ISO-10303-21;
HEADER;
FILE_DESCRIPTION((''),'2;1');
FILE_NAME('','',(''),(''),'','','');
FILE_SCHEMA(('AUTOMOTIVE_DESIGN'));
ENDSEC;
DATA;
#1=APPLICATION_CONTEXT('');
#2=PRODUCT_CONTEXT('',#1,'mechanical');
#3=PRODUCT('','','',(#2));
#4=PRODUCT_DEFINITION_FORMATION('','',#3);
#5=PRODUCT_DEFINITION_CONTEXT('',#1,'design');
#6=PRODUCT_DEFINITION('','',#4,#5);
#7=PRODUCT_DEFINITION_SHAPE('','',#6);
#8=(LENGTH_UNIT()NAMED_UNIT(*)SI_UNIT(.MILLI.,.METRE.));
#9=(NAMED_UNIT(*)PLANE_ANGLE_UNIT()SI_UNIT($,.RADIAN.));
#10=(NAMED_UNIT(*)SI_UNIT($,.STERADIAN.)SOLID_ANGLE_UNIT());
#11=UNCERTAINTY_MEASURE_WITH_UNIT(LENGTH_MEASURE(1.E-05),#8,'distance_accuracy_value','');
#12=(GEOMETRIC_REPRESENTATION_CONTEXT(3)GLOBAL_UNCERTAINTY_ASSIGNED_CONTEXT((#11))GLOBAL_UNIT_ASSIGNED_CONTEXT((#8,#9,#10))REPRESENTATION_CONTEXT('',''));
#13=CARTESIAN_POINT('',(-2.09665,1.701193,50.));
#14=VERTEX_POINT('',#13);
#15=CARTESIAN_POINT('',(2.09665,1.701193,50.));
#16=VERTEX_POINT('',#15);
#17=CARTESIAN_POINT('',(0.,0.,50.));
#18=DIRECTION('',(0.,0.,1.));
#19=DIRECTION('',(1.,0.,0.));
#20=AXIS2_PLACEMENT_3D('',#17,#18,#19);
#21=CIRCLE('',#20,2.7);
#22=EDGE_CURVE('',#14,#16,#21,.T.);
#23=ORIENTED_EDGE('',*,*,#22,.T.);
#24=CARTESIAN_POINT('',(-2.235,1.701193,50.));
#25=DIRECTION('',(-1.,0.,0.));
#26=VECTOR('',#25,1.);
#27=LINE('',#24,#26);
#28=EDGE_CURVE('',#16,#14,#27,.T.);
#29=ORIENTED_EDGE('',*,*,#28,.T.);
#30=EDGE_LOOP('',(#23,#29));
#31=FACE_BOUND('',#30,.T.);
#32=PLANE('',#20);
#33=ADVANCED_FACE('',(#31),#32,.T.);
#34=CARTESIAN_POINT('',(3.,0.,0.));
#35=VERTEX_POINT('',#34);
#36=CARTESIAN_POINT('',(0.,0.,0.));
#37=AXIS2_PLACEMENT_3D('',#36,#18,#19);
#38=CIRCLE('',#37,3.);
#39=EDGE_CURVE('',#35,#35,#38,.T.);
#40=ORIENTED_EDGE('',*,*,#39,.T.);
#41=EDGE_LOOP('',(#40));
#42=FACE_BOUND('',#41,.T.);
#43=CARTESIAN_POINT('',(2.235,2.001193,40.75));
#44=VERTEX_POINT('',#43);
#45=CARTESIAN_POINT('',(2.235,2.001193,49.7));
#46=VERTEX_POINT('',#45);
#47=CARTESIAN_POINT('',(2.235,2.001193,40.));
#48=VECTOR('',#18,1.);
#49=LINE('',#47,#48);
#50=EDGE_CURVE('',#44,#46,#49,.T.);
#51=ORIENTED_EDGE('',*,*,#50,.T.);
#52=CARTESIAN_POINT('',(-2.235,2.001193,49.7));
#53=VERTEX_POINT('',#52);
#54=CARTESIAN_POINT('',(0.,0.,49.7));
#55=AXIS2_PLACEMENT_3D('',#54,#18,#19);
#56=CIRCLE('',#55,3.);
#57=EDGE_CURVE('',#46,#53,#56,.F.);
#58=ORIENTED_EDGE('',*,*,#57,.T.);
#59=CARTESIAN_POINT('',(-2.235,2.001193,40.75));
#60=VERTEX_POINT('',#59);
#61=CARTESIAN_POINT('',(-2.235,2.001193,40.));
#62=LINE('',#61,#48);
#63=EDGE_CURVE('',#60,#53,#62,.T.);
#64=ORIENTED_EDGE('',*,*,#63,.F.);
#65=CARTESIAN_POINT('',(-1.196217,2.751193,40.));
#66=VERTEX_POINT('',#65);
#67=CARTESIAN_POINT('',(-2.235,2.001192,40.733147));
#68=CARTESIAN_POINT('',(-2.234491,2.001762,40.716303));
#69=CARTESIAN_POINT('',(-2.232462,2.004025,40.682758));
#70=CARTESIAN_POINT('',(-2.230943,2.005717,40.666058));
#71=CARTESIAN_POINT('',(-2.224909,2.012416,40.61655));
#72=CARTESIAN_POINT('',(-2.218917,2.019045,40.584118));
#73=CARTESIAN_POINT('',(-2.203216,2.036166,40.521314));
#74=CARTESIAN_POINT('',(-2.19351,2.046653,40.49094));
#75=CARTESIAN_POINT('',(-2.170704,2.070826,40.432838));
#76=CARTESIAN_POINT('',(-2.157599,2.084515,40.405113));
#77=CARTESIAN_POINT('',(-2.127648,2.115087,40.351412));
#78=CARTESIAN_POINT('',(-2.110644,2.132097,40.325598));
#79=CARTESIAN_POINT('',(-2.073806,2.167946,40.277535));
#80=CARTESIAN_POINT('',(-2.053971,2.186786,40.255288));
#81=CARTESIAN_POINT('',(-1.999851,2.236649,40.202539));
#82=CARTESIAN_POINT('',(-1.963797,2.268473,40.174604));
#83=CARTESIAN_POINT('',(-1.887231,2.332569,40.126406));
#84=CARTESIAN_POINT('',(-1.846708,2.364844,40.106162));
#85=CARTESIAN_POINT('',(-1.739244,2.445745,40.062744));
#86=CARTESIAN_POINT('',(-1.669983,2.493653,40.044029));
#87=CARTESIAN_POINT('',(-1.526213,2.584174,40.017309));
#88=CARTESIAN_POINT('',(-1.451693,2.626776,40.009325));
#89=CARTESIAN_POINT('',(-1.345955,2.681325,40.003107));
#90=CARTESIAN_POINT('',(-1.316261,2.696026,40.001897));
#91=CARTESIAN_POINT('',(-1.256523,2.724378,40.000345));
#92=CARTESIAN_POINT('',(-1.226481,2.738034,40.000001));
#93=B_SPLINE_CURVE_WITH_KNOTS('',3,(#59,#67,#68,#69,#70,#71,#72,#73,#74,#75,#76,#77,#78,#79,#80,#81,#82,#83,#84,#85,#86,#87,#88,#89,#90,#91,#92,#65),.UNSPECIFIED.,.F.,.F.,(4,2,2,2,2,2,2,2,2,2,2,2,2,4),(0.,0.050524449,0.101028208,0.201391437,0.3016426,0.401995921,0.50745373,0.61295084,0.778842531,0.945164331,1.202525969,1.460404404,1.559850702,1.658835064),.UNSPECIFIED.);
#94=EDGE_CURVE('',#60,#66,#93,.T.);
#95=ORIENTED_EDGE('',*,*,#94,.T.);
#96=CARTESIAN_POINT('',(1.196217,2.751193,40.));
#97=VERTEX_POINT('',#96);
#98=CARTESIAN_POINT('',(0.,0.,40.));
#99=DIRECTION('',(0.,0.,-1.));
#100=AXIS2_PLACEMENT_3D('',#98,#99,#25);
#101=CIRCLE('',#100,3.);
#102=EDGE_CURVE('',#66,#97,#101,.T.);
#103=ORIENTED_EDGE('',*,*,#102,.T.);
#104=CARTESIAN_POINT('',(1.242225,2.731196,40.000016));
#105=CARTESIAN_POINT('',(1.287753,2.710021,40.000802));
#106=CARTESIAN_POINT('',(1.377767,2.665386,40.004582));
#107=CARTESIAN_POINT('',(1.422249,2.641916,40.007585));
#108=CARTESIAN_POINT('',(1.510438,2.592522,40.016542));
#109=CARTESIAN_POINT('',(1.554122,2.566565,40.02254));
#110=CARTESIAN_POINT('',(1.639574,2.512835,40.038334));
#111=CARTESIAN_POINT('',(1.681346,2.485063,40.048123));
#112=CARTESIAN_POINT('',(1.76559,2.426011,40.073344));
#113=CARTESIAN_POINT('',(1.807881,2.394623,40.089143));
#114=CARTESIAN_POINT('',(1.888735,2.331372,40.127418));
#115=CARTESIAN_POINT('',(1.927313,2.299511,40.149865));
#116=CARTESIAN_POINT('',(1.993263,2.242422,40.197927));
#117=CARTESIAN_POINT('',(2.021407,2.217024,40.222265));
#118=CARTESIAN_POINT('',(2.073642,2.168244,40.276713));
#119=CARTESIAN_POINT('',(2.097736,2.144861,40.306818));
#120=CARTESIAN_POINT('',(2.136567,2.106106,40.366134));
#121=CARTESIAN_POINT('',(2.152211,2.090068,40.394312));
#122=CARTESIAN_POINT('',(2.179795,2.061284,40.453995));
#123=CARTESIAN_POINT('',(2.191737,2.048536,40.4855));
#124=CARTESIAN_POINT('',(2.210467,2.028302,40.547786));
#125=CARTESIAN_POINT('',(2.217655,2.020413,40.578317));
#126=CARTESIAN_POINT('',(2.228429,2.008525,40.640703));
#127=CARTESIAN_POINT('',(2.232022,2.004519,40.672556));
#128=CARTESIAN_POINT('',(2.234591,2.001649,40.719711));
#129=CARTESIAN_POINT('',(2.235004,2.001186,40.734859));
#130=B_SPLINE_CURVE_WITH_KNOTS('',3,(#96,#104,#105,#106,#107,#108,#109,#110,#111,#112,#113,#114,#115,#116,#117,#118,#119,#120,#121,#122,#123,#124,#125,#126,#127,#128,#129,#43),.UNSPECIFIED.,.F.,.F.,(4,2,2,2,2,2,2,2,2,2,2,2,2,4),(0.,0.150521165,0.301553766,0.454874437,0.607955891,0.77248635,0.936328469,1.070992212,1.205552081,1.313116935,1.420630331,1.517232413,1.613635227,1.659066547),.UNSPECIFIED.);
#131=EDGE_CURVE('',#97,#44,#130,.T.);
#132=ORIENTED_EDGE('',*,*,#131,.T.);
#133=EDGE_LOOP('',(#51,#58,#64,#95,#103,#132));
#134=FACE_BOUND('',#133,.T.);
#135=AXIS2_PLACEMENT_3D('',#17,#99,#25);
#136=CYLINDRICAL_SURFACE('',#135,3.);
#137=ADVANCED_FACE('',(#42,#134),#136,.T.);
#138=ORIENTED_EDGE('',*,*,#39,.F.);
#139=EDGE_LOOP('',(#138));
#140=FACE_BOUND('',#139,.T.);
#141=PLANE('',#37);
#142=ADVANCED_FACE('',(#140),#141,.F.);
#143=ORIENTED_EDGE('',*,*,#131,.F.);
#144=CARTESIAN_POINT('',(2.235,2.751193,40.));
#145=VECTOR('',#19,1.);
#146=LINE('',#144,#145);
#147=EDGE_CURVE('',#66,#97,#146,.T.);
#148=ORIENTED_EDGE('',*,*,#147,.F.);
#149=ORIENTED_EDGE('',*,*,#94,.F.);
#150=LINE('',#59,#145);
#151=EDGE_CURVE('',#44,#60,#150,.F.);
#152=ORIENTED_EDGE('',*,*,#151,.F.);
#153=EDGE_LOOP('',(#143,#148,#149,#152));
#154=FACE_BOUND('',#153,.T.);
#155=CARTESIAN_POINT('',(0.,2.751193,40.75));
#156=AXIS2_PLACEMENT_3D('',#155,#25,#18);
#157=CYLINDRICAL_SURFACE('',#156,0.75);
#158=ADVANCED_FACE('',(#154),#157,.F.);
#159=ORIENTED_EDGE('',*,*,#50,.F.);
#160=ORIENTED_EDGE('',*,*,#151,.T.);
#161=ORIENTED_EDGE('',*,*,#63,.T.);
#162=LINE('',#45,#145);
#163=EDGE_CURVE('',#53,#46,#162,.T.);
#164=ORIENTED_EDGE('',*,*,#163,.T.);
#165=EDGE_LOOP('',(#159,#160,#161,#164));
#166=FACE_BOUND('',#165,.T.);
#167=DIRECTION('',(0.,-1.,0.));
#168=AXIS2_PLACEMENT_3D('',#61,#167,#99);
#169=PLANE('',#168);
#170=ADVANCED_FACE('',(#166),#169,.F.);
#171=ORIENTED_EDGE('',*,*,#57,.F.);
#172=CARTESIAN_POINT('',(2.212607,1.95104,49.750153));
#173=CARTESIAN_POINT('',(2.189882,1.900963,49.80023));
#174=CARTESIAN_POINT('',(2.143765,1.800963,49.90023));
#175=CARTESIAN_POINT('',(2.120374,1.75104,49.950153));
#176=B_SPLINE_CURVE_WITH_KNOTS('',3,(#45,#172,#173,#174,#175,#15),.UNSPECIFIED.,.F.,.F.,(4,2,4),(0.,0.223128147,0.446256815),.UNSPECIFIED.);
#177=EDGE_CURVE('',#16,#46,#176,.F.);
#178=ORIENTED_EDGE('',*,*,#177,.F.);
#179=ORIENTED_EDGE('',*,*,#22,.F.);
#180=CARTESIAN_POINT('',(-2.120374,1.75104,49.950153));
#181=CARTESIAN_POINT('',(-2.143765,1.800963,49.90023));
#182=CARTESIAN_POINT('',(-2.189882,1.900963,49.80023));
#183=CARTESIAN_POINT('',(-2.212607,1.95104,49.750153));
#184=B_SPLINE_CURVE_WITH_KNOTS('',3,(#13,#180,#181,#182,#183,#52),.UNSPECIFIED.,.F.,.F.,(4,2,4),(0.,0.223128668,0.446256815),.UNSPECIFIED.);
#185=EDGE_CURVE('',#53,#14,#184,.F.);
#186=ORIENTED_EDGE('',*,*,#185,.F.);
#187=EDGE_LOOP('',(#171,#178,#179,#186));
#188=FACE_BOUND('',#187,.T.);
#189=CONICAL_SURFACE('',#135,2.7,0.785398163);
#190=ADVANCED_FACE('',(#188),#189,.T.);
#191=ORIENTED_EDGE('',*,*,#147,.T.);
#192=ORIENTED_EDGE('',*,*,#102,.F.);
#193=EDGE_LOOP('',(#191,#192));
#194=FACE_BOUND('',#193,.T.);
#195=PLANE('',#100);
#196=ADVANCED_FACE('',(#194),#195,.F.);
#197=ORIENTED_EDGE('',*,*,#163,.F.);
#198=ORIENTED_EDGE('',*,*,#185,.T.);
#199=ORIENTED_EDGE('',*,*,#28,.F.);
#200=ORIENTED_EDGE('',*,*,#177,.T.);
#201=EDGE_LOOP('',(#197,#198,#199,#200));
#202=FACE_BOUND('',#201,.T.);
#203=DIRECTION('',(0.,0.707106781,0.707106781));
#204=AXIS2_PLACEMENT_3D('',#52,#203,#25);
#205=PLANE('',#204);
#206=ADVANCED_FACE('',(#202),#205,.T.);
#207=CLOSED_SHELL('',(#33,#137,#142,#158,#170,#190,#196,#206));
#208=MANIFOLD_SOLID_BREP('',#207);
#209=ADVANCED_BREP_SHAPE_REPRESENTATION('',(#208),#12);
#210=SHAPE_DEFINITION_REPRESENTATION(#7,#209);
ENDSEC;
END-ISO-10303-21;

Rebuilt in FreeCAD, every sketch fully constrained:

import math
import FreeCAD as App
import Part
import Sketcher

V = App.Vector


def edges_at(feature, points):
    """Names of the edges that pass closest to the given points."""
    edges = feature.Shape.Edges
    near = lambda p: min(range(len(edges)), key=lambda i: edges[i].distToShape(Part.Vertex(*p))[0])
    return sorted({f"Edge{near(p) + 1}" for p in points})

doc = App.newDocument("Part")
body = doc.addObject("PartDesign::Body", "Body")

# Sketch on XY plane
sketch1 = body.newObject("Sketcher::SketchObject", "Sketch")
sketch1.AttachmentSupport = (doc.getObject("XY_Plane"), [""])
sketch1.MapMode = "FlatFace"
sketch1.addGeometry([
    Part.ArcOfCircle(Part.Circle(V(0, 0, 0), V(0, 0, 1), 3), math.radians(38), math.radians(142)),
    Part.ArcOfCircle(Part.Circle(V(0, 0, 0), V(0, 0, 1), 3), math.radians(142), math.radians(360)),
    Part.ArcOfCircle(Part.Circle(V(0, 0, 0), V(0, 0, 1), 3), math.radians(0), math.radians(38)),
], False)
sketch1.addConstraint([
    Sketcher.Constraint("Tangent", 0, 2, 1, 1),
    Sketcher.Constraint("Tangent", 1, 2, 2, 1),
    Sketcher.Constraint("Tangent", 2, 2, 0, 1),
    Sketcher.Constraint("Coincident", 0, 3, -1, 1),
    Sketcher.Constraint("PointOnObject", 1, 2, -1),
    Sketcher.Constraint("Horizontal", 0, 2, 2, 2),
    Sketcher.Constraint("Radius", 0, 3.0),
    Sketcher.Constraint("DistanceX", 0, 2, 2, 2, 4.7),
])
pad1 = body.newObject("PartDesign::Pad", "Pad")
pad1.Profile = sketch1
pad1.Length = 50

# Sketch on XY plane
sketch2 = body.newObject("Sketcher::SketchObject", "Sketch001")
sketch2.AttachmentSupport = (doc.getObject("XY_Plane"), [""])
sketch2.MapMode = "FlatFace"
sketch2.AttachmentOffset = App.Placement(V(0, 0, 50), App.Rotation())
sketch2.addGeometry([
    Part.LineSegment(V(-2.2, 7, 0), V(-2.2, 2, 0)),
    Part.LineSegment(V(-2.2, 2, 0), V(2.2, 2, 0)),
    Part.LineSegment(V(2.2, 2, 0), V(2.2, 7, 0)),
    Part.LineSegment(V(2.2, 7, 0), V(-2.2, 7, 0)),
], False)
sketch2.addConstraint([
    Sketcher.Constraint("Coincident", 0, 2, 1, 1),
    Sketcher.Constraint("Coincident", 1, 2, 2, 1),
    Sketcher.Constraint("Coincident", 2, 2, 3, 1),
    Sketcher.Constraint("Coincident", 3, 2, 0, 1),
    Sketcher.Constraint("Vertical", 0),
    Sketcher.Constraint("Horizontal", 1),
    Sketcher.Constraint("Vertical", 2),
    Sketcher.Constraint("Horizontal", 3),
    Sketcher.Constraint("DistanceY", 0, 2, 0, 1, 5.0),
    Sketcher.Constraint("DistanceX", 1, 1, 1, 2, 4.47),
    Sketcher.Constraint("DistanceX", 0, 2, -1, 1, 2.235),
    Sketcher.Constraint("DistanceY", -1, 1, 0, 2, 2.001193),
])
pocket1 = body.newObject("PartDesign::Pocket", "Pocket")
pocket1.Profile = sketch2
pocket1.Length = 10
doc.recompute()

chamfer = body.newObject("PartDesign::Chamfer", "Chamfer")
chamfer.Base = (pocket1, edges_at(pocket1, [(-0.987, -2.833, 50), (0, 2.001, 50)]))
chamfer.Size = 0.3
doc.recompute()

fillet = body.newObject("PartDesign::Fillet", "Fillet")
fillet.Base = (chamfer, edges_at(chamfer, [(0, 2.001, 40)]))
fillet.Radius = 0.75

doc.recompute()
